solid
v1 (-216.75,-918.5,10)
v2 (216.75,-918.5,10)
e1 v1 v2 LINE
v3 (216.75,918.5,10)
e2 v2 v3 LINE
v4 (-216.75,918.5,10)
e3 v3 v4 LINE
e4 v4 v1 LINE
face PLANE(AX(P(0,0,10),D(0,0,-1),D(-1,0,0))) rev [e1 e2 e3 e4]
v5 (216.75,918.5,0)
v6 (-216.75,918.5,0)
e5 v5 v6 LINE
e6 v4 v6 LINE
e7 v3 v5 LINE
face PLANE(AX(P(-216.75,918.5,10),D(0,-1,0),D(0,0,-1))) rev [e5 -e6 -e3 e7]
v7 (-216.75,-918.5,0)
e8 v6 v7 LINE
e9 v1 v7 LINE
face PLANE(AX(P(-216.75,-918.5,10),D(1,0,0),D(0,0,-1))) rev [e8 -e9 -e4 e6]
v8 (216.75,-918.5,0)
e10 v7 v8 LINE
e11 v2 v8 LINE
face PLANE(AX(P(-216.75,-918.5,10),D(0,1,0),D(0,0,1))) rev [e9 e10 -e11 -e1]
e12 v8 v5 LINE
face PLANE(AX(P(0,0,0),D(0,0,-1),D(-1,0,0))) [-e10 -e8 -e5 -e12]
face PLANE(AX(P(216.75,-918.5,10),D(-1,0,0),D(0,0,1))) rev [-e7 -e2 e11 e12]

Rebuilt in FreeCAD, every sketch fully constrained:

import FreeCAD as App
import Part
import Sketcher
from FreeCAD import Vector
Q = App.Units.Quantity

doc = App.newDocument("Part")
body = doc.addObject("PartDesign::Body", "Body")

# Sketch on XY plane
sketch1 = doc.addObject("Sketcher::SketchObject", "Sketch")
body.addObject(sketch1)
sketch1.AttachmentSupport = (doc.XY_Plane, [""])
sketch1.MapMode = "FlatFace"
sketch1.addGeometry([
    Part.LineSegment(Vector(-217, 918, 0), Vector(-217, -918, 0)),
    Part.LineSegment(Vector(-217, -918, 0), Vector(217, -918, 0)),
    Part.LineSegment(Vector(217, -918, 0), Vector(217, 918, 0)),
    Part.LineSegment(Vector(217, 918, 0), Vector(-217, 918, 0)),
], False)
sketch1.addConstraint([
    Sketcher.Constraint("Coincident", 0, 2, 1, 1),
    Sketcher.Constraint("Coincident", 1, 2, 2, 1),
    Sketcher.Constraint("Coincident", 2, 2, 3, 1),
    Sketcher.Constraint("Coincident", 3, 2, 0, 1),
    Sketcher.Constraint("Vertical", 0),
    Sketcher.Constraint("Horizontal", 1),
    Sketcher.Constraint("Vertical", 2),
    Sketcher.Constraint("Horizontal", 3),
    Sketcher.Constraint("Symmetric", 0, 2, 2, 2, -1, 1),
    Sketcher.Constraint("DistanceY", 0, 2, 0, 1, Q("1837 mm")),
    Sketcher.Constraint("DistanceX", 1, 1, 1, 2, Q("433.5 mm")),
])
pad1 = doc.addObject("PartDesign::Pad", "Pad")
body.addObject(pad1)
pad1.Profile = sketch1
pad1.Length = 10

doc.recompute()
